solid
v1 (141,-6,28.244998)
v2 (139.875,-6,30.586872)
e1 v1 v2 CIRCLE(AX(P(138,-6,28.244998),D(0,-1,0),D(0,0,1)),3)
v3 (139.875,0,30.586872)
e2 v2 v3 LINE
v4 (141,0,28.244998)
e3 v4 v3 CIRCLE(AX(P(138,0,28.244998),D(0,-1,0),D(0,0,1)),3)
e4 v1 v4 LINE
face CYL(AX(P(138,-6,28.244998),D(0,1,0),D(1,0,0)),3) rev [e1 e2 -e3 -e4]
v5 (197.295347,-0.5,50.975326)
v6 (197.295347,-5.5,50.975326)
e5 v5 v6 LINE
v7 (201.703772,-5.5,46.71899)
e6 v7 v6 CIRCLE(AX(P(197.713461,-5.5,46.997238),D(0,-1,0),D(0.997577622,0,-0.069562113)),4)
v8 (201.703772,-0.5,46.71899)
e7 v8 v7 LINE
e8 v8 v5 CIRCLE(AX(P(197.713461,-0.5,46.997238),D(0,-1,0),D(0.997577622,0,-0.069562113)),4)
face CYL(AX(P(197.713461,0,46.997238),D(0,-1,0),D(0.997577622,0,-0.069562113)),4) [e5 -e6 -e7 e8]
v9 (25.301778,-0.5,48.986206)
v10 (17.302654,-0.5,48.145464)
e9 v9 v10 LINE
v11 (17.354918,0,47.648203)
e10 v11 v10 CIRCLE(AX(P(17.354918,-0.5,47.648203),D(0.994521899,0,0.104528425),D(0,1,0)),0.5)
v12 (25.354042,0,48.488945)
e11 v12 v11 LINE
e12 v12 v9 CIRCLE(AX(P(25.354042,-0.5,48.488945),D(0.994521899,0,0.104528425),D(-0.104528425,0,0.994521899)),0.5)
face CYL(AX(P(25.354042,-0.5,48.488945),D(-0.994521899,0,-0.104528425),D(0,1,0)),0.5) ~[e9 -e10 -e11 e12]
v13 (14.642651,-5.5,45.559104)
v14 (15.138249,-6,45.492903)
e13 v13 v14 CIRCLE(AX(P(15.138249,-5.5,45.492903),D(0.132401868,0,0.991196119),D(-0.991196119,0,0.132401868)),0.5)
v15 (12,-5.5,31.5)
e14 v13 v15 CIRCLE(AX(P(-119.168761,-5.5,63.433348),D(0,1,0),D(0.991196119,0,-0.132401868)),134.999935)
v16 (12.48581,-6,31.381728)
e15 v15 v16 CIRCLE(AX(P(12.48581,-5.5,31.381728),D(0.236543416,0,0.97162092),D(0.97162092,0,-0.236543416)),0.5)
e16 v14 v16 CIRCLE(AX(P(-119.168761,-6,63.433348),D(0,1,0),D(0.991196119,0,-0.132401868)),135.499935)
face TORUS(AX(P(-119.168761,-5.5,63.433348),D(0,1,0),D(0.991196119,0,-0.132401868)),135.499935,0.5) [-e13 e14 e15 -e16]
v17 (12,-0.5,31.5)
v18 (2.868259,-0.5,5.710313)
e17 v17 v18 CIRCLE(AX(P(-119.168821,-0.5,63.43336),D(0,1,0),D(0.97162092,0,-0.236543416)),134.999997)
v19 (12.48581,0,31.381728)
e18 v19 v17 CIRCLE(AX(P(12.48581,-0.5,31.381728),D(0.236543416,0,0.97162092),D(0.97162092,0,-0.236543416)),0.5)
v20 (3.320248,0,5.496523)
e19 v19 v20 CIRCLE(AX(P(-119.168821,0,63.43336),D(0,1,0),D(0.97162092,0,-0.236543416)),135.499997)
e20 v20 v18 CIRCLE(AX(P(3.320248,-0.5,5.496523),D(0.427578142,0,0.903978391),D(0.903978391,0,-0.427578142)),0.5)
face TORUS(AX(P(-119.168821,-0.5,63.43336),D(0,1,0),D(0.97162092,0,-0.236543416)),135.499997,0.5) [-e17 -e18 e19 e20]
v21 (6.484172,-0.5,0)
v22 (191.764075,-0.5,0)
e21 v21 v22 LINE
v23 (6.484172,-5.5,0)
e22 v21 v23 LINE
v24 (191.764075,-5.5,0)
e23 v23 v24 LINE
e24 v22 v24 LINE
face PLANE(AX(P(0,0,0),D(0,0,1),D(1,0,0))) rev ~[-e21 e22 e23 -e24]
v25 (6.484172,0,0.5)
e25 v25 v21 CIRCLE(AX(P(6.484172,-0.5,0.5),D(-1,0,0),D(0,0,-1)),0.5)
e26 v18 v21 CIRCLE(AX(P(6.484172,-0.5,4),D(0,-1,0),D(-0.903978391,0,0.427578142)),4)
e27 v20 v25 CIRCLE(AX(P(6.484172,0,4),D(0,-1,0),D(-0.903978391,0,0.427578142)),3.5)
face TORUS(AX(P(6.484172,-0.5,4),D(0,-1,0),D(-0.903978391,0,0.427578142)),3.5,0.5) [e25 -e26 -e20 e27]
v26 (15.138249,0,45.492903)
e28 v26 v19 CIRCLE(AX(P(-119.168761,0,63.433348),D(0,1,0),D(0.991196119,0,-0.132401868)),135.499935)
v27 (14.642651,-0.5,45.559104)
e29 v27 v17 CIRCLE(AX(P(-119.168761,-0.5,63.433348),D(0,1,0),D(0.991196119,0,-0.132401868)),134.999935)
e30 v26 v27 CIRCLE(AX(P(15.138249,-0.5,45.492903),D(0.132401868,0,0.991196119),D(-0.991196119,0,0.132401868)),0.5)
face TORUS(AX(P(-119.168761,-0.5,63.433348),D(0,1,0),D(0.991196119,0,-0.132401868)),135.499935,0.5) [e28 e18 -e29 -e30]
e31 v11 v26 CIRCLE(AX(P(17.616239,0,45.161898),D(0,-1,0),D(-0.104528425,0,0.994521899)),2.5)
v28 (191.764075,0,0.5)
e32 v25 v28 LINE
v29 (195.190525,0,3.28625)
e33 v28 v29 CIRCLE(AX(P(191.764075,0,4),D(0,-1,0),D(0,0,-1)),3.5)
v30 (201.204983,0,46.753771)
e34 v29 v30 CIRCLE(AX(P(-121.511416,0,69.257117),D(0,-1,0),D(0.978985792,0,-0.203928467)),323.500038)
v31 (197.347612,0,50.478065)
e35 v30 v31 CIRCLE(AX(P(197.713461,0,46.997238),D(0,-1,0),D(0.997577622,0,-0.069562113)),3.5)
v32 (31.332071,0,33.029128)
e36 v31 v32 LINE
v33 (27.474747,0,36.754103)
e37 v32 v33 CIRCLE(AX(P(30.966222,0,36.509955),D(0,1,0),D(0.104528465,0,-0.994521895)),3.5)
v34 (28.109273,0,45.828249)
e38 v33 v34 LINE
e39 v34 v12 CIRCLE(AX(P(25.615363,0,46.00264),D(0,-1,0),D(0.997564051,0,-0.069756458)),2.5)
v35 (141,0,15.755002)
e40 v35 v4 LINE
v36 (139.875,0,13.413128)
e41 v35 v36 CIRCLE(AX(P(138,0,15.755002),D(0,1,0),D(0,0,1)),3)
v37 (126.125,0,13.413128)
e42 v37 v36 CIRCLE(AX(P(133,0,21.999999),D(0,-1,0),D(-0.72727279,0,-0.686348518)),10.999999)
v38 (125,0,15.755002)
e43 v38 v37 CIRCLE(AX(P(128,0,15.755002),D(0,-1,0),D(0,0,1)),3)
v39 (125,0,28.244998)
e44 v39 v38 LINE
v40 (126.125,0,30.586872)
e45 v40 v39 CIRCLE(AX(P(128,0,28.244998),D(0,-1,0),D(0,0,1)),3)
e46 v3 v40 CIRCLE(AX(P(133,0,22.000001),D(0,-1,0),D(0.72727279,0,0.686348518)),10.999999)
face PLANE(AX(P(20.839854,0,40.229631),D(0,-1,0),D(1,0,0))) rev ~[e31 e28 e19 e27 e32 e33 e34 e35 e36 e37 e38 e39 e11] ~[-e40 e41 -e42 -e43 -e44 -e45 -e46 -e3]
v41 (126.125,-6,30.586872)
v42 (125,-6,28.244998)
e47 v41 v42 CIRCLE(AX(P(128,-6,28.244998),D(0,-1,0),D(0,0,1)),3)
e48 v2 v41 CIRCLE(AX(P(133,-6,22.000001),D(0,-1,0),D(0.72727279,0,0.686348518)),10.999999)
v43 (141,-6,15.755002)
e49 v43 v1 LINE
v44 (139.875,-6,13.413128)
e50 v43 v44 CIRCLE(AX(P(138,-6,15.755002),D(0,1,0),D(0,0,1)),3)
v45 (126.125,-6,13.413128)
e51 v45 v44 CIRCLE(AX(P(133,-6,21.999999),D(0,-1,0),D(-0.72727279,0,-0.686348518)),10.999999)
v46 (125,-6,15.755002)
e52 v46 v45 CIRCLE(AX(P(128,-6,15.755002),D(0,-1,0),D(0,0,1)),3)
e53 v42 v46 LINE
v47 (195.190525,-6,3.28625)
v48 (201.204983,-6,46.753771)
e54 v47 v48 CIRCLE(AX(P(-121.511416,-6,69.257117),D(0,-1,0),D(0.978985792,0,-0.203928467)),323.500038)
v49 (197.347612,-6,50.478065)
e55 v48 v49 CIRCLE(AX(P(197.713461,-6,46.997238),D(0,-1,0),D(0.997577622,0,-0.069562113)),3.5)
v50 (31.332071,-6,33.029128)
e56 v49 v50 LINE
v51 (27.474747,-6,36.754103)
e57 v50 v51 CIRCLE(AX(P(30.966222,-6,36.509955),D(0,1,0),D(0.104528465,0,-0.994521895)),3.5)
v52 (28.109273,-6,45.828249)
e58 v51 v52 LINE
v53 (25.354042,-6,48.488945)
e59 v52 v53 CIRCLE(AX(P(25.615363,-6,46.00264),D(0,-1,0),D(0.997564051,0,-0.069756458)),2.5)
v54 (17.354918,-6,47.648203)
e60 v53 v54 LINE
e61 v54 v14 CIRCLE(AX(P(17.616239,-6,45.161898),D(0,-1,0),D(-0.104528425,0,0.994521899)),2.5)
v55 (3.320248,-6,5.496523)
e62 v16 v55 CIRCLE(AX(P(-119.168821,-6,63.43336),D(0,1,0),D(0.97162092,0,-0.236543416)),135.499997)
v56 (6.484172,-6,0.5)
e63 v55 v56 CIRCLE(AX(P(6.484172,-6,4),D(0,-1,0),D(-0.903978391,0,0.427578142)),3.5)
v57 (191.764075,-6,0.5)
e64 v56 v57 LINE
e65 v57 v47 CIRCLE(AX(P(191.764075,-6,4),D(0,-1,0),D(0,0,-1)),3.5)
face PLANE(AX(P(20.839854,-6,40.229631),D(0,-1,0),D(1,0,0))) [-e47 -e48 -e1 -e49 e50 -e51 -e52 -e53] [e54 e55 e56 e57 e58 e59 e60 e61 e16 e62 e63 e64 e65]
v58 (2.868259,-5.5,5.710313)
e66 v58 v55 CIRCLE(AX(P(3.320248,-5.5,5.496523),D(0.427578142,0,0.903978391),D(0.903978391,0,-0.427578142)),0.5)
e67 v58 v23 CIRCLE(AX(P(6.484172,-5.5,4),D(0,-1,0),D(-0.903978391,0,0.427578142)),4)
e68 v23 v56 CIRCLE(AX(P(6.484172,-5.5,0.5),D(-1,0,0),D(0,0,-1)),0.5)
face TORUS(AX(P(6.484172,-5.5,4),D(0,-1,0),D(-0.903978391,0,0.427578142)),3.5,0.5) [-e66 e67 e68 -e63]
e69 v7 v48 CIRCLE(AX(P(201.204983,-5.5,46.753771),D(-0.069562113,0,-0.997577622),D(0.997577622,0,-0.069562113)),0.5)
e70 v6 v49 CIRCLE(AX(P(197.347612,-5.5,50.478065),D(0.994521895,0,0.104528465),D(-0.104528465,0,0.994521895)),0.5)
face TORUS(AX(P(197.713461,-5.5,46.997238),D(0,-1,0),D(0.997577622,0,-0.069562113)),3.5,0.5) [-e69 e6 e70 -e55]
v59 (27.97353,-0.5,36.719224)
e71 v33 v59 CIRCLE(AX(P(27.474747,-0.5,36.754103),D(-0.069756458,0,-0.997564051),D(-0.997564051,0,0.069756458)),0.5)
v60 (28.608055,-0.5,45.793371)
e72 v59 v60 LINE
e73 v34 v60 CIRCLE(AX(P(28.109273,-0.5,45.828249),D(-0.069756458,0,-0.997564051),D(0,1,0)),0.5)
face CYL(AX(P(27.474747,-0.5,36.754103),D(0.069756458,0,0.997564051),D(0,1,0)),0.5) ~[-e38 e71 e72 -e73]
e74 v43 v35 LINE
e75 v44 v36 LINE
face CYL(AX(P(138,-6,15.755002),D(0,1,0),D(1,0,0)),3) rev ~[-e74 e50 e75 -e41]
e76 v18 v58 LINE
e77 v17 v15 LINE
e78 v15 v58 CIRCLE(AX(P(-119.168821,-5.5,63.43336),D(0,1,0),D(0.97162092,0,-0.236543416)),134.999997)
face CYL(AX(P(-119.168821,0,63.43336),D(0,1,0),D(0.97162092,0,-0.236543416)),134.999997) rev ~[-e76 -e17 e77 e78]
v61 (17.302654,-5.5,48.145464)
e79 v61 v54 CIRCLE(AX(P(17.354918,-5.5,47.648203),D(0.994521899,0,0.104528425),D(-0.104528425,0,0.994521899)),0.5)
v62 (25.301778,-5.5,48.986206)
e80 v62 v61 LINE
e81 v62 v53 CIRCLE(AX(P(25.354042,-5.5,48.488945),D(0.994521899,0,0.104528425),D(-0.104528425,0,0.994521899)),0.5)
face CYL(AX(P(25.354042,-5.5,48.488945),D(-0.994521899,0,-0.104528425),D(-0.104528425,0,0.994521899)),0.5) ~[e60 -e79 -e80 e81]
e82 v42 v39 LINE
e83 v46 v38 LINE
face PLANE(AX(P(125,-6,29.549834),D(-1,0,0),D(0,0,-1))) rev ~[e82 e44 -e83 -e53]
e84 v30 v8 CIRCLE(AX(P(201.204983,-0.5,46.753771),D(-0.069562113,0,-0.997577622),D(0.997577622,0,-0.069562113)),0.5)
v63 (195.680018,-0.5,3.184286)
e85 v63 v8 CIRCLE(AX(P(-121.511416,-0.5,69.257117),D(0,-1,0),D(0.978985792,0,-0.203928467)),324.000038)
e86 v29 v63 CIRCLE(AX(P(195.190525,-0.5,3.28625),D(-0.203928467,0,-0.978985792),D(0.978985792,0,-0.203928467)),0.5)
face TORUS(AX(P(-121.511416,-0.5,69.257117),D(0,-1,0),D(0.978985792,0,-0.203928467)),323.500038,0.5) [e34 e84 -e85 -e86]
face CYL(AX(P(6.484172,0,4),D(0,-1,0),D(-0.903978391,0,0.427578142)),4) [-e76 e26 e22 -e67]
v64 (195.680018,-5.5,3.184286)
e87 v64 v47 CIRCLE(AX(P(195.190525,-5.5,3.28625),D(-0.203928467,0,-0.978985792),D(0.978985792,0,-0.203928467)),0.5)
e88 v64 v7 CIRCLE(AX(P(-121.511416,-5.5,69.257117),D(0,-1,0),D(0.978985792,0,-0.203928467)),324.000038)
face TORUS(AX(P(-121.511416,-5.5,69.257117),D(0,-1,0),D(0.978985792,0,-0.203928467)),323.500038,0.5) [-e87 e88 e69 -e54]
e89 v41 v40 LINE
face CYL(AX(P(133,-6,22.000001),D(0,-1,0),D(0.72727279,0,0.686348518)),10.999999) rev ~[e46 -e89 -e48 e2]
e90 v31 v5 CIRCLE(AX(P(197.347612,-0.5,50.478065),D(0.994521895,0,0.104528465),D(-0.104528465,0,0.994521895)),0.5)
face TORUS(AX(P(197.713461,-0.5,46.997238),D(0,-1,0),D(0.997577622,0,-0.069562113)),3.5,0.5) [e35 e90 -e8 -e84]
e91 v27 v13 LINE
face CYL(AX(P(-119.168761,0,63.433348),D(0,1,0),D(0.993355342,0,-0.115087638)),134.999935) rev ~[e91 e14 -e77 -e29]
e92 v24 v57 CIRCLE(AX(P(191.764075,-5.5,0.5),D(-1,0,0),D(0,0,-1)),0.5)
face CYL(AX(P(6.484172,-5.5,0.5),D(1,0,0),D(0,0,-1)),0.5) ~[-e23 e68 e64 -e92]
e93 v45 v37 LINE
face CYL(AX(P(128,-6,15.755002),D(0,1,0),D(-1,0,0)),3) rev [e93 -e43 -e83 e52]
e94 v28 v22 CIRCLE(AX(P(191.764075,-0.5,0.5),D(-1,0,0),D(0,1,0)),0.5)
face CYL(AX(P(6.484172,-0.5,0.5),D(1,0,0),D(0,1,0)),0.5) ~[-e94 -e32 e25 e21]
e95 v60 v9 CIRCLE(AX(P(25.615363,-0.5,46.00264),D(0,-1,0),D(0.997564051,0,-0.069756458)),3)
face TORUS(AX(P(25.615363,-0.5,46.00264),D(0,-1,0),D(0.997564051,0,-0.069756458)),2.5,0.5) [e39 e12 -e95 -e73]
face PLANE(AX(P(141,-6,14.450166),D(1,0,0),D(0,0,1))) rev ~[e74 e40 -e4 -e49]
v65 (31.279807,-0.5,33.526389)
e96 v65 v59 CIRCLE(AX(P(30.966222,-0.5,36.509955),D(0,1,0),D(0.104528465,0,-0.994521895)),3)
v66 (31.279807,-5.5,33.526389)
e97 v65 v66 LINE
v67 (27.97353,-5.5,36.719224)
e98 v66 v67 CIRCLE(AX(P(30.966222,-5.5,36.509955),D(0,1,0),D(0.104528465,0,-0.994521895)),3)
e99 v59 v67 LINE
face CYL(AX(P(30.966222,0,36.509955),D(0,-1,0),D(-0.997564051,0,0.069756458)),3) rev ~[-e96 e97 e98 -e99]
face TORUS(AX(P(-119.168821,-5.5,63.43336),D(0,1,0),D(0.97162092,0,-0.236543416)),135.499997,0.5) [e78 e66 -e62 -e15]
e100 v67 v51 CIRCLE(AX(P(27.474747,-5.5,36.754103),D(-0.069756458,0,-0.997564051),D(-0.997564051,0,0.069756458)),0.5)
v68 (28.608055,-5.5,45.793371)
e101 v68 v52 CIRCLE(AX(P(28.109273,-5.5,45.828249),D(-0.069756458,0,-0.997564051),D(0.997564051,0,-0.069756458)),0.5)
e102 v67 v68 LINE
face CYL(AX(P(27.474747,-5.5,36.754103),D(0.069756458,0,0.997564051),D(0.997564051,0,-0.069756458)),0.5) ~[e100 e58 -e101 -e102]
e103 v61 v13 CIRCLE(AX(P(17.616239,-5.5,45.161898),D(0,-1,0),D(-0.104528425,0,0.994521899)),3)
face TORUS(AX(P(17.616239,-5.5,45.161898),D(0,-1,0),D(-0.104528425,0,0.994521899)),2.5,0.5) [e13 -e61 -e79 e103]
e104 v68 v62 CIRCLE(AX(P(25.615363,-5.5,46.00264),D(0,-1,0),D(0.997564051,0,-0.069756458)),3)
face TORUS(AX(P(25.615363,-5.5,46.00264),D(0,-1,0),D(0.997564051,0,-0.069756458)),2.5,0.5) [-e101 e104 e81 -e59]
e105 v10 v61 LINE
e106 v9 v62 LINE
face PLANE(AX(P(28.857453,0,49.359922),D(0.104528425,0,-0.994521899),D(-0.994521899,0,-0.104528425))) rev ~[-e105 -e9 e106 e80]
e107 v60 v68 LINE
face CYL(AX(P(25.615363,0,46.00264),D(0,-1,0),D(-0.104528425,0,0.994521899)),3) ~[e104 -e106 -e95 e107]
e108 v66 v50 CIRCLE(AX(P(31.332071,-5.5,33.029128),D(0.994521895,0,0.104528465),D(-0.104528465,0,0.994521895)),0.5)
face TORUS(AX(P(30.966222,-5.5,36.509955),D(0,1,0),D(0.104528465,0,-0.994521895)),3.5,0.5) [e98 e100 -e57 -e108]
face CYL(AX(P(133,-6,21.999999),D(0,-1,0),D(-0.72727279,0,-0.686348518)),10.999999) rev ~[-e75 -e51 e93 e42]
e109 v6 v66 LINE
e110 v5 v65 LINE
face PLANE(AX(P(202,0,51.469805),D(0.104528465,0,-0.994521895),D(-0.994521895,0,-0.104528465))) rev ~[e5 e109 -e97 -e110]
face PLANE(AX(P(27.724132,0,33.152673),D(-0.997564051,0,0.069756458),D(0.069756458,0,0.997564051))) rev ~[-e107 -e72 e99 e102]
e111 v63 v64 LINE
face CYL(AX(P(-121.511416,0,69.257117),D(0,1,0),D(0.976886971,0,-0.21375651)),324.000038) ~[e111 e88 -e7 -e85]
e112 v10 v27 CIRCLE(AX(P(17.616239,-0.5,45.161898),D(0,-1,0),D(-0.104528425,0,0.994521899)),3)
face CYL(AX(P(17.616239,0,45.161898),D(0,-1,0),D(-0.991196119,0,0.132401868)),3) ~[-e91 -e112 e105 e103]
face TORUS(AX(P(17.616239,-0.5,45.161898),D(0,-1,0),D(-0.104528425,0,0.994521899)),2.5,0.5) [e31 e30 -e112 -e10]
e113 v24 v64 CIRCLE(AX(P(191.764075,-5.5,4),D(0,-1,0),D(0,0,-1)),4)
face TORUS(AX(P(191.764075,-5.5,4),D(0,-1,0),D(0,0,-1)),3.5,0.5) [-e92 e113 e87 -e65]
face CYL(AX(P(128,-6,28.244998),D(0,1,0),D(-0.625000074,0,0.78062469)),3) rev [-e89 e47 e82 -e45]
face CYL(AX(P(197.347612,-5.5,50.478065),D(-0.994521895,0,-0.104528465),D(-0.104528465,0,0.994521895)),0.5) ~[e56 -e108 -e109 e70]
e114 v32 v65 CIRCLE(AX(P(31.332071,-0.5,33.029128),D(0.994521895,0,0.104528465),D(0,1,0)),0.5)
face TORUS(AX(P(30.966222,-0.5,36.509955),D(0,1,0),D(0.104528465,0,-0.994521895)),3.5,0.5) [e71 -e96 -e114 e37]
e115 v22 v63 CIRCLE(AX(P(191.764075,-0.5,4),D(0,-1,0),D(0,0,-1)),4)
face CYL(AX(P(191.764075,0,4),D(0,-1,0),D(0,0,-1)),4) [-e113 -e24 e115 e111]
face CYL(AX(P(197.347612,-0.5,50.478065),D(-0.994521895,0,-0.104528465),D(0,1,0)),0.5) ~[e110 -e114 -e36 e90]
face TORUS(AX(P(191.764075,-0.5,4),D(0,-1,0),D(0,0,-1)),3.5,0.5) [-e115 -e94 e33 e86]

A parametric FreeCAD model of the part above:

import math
import FreeCAD as App
import Part
import Sketcher

V = App.Vector
Q = App.Units.Quantity


def edges_at(feature, points):
    """Names of the edges that pass closest to the given points."""
    edges = feature.Shape.Edges
    near = lambda p: min(range(len(edges)), key=lambda i: edges[i].distToShape(Part.Vertex(*p))[0])
    return sorted({f"Edge{near(p) + 1}" for p in points})

doc = App.newDocument("Part")
body = doc.addObject("PartDesign::Body", "Body")

sketch1 = body.newObject("Sketcher::SketchObject", "Sketch")
sketch1.AttachmentSupport = (doc.getObject("XZ_Plane"), [""])
sketch1.MapMode = "FlatFace"
sketch1.addGeometry([
    Part.ArcOfCircle(Part.Circle(V(-119, 63, 0), V(0, 0, 1), 135), math.radians(-28.03), math.radians(-13.68)),
    Part.LineSegment(V(0, 0, 0), V(195, 0, 0)),
    Part.ArcOfCircle(Part.Circle(V(-122, 69, 0), V(0, 0, 1), 324), math.radians(-12.34), math.radians(-3.15)),
    Part.LineSegment(V(202, 51, 0), V(12, 32, 0)),
], False)
sketch1.addConstraint([
    Sketcher.Constraint("Coincident", 0, 1, 1, 1),
    Sketcher.Constraint("Coincident", 1, 2, 2, 1),
    Sketcher.Constraint("Coincident", 2, 2, 3, 1),
    Sketcher.Constraint("Coincident", 3, 2, 0, 2),
    Sketcher.Constraint("Horizontal", 1),
    Sketcher.Constraint("Coincident", 0, 1, -1, 1),
    Sketcher.Constraint("DistanceX", 1, 1, 1, 2, Q("195 mm")),
    Sketcher.Constraint("Angle", 3, Q("-174 deg")),
    Sketcher.Constraint("DistanceX", -1, 1, 2, 2, Q("202 mm")),
    Sketcher.Constraint("DistanceX", -1, 1, 3, 2, Q("12 mm")),
    Sketcher.Constraint("DistanceY", -1, 1, 3, 2, Q("31.5 mm")),
    Sketcher.Constraint("Radius", 2, Q("324.000038 mm")),
    Sketcher.Constraint("Radius", 0, Q("134.999997 mm")),
])
pad1 = body.newObject("PartDesign::Pad", "Pad")
pad1.Profile = sketch1
pad1.Length = 6
doc.recompute()

fillet = body.newObject("PartDesign::Fillet", "Fillet")
fillet.Base = (pad1, edges_at(pad1, [(0, -3, 0), (195, -3, 0), (202, -3, 51.47)]))
fillet.Radius = 4

sketch2 = body.newObject("Sketcher::SketchObject", "Sketch001")
sketch2.AttachmentSupport = (doc.getObject("XZ_Plane"), [""])
sketch2.MapMode = "FlatFace"
sketch2.addGeometry([
    Part.ArcOfCircle(Part.Circle(V(-119, 63, 0), V(0, 0, 1), 135), math.radians(-13.68), math.radians(-6.61)),
    Part.LineSegment(V(12, 32, 0), V(28, 33, 0)),
    Part.LineSegment(V(28, 33, 0), V(29, 49, 0)),
    Part.LineSegment(V(29, 49, 0), V(15, 48, 0)),
], False)
sketch2.addConstraint([
    Sketcher.Constraint("Coincident", 0, 1, 1, 1),
    Sketcher.Constraint("Coincident", 1, 2, 2, 1),
    Sketcher.Constraint("Coincident", 2, 2, 3, 1),
    Sketcher.Constraint("Coincident", 3, 2, 0, 2),
    Sketcher.Constraint("Parallel", 1, 3),
    Sketcher.Constraint("Angle", 1, Q("6 deg")),
    Sketcher.Constraint("Angle", 2, Q("86.000001 deg")),
    Sketcher.Constraint("Distance", 3, Q("14 mm")),
    Sketcher.Constraint("DistanceX", -1, 1, 0, 1, Q("12 mm")),
    Sketcher.Constraint("DistanceY", -1, 1, 0, 1, Q("31.5 mm")),
    Sketcher.Constraint("Radius", 0, Q("134.999935 mm")),
    Sketcher.Constraint("DistanceX", 0, 3, -1, 1, Q("119.168761 mm")),
    Sketcher.Constraint("DistanceY", -1, 1, 2, 2, Q("49.359922 mm")),
])
pad2 = body.newObject("PartDesign::Pad", "Pad001")
pad2.Profile = sketch2
pad2.Length = 6

sketch3 = body.newObject("Sketcher::SketchObject", "Sketch002")
sketch3.AttachmentSupport = (doc.getObject("XZ_Plane"), [""])
sketch3.MapMode = "FlatFace"
sketch3.AttachmentOffset = App.Placement(V(0, 0, 6), App.Rotation())
sketch3.addGeometry([
    Part.LineSegment(V(141, 14, 0), V(141, 30, 0)),
    Part.ArcOfCircle(Part.Circle(V(133, 22, 0), V(0, 0, 1), 11), math.radians(43), math.radians(137)),
    Part.LineSegment(V(125, 30, 0), V(125, 14, 0)),
    Part.ArcOfCircle(Part.Circle(V(133, 22, 0), V(0, 0, 1), 11), math.radians(-137), math.radians(-43)),
], False)
sketch3.addConstraint([
    Sketcher.Constraint("Coincident", 0, 2, 1, 1),
    Sketcher.Constraint("Coincident", 1, 2, 2, 1),
    Sketcher.Constraint("Coincident", 2, 2, 3, 1),
    Sketcher.Constraint("Coincident", 3, 2, 0, 1),
    Sketcher.Constraint("Vertical", 0),
    Sketcher.Constraint("Vertical", 2),
    Sketcher.Constraint("Coincident", 3, 3, 1, 3),
    Sketcher.Constraint("Equal", 1, 3),
    Sketcher.Constraint("Horizontal", 0, 2, 1, 2),
    Sketcher.Constraint("Radius", 1, Q("10.999999 mm")),
    Sketcher.Constraint("DistanceX", -1, 1, 1, 3, Q("133 mm")),
    Sketcher.Constraint("DistanceY", -1, 1, 1, 3, Q("22.000001 mm")),
    Sketcher.Constraint("DistanceX", -1, 1, 0, 2, Q("141 mm")),
])
pocket1 = body.newObject("PartDesign::Pocket", "Pocket")
pocket1.Profile = sketch3
pocket1.Type = "ThroughAll"
doc.recompute()

fillet2 = body.newObject("PartDesign::Fillet", "Fillet001")
fillet2.Base = (pocket1, edges_at(pocket1, [
    (14.934, -3, 47.897),
    (28.857, -3, 49.36),
    (27.724, -3, 33.153),
    (125, -3, 14.45),
    (125, -3, 29.55),
    (141, -3, 29.55),
    (141, -3, 14.45),
]))
fillet2.Radius = 3
doc.recompute()

fillet3 = body.newObject("PartDesign::Fillet", "Fillet002")
fillet3.Base = (fillet2, edges_at(fillet2, [(8.089, -6, 18.373), (8.089, 0, 18.373)]))
fillet3.Radius = 0.5

doc.recompute()
